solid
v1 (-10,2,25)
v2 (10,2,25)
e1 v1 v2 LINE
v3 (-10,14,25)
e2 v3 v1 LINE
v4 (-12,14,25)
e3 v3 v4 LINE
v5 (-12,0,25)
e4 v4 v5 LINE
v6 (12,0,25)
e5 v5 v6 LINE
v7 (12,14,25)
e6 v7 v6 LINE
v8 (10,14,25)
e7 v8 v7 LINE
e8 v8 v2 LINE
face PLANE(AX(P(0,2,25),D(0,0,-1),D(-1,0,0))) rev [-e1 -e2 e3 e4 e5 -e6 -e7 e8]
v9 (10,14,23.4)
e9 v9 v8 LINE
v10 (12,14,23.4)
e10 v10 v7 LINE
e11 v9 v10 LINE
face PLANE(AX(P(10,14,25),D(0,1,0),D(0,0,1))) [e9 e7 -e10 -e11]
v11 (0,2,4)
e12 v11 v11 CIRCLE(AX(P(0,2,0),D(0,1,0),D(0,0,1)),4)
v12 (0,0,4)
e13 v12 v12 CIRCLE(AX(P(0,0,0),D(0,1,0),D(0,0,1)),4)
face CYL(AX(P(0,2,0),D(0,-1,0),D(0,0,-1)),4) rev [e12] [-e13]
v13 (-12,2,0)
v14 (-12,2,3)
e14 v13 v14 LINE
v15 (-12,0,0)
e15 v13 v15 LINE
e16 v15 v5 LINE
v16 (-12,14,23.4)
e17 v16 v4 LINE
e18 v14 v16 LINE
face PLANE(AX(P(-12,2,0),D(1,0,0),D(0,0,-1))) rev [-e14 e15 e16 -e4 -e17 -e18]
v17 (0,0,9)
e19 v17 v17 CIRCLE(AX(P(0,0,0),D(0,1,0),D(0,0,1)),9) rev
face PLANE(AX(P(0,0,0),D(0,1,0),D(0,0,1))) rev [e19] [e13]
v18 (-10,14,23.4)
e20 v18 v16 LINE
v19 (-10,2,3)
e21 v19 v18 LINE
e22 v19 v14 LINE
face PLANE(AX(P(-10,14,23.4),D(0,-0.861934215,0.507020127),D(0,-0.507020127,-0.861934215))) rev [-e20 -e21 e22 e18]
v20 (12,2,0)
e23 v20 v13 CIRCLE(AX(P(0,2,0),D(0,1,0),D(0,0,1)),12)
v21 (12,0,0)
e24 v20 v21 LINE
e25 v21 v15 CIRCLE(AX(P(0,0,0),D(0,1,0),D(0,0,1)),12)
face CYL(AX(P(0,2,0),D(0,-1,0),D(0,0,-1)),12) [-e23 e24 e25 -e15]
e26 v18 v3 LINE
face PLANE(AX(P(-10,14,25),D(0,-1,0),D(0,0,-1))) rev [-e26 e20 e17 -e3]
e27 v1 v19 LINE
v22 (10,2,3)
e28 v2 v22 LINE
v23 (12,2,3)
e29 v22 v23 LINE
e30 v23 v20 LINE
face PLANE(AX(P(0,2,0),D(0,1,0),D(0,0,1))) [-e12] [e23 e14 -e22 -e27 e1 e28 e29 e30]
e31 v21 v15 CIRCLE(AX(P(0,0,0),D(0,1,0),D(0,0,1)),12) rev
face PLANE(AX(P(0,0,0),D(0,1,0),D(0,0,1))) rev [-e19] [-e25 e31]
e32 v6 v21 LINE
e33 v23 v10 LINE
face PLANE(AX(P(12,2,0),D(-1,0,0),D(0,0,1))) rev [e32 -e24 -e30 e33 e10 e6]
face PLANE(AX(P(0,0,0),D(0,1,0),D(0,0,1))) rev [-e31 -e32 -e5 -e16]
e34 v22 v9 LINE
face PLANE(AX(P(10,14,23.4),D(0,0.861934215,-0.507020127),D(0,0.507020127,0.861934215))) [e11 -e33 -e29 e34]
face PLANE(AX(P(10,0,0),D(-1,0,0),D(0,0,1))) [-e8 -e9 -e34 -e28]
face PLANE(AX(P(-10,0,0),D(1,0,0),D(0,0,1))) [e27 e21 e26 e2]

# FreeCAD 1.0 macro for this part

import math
import FreeCAD as App
import Part
import Sketcher

V = App.Vector


def add_polygon(sketch, points):
    """Adds a closed chain of lines whose ends are joined by coincident constraints."""
    first, n = sketch.GeometryCount, len(points)
    for a, b in zip(points, points[1:] + points[:1]):
        sketch.addGeometry(Part.LineSegment(App.Vector(*a, 0), App.Vector(*b, 0)), False)
    for i in range(n):
        sketch.addConstraint(Sketcher.Constraint("Coincident", first + i, 2, first + (i + 1) % n, 1))

doc = App.newDocument("Part")
body = doc.addObject("PartDesign::Body", "Body")

sketch1 = body.newObject("Sketcher::SketchObject", "Sketch")
sketch1.AttachmentSupport = (doc.getObject("XZ_Plane"), [""])
sketch1.MapMode = "FlatFace"
sketch1.addGeometry([
    Part.ArcOfCircle(Part.Circle(V(0, 0, 0), V(0, 0, 1), 12), math.radians(180), math.radians(360)),
    Part.LineSegment(V(-12, 0, 0), V(-12, 25, 0)),
    Part.LineSegment(V(-12, 25, 0), V(12, 25, 0)),
    Part.LineSegment(V(12, 25, 0), V(12, 0, 0)),
    Part.Circle(V(0, 0, 0), V(0, 0, 1), 4),
], False)
sketch1.addConstraint([
    Sketcher.Constraint("Tangent", 0, 1, 1, 1),
    Sketcher.Constraint("Coincident", 1, 2, 2, 1),
    Sketcher.Constraint("Coincident", 2, 2, 3, 1),
    Sketcher.Constraint("Tangent", 3, 2, 0, 2),
    Sketcher.Constraint("Vertical", 1),
    Sketcher.Constraint("Horizontal", 2),
    Sketcher.Constraint("Vertical", 3),
    Sketcher.Constraint("Coincident", 0, 3, -1, 1),
    Sketcher.Constraint("Coincident", 4, 3, -1, 1),
    Sketcher.Constraint("Diameter", 4, 8.0),
    Sketcher.Constraint("Radius", 0, 12.0),
    Sketcher.Constraint("DistanceY", 1, 1, 1, 2, 25.0),
])
pad1 = body.newObject("PartDesign::Pad", "Pad")
pad1.Profile = sketch1
pad1.Length = 2
pad1.Reversed = True

sketch2 = body.newObject("Sketcher::SketchObject", "Sketch001")
sketch2.AttachmentSupport = (doc.getObject("YZ_Plane"), [""])
sketch2.MapMode = "FlatFace"
sketch2.AttachmentOffset = App.Placement(V(0, 0, 12), App.Rotation())
add_polygon(sketch2, [(14, 25), (2, 25), (2, 3), (14, 23.4)])
sketch2.addConstraint([
    Sketcher.Constraint("Horizontal", 0),
    Sketcher.Constraint("Vertical", 1),
    Sketcher.Constraint("Vertical", 3),
    Sketcher.Constraint("DistanceX", 0, 2, 0, 1, 12.0),
    Sketcher.Constraint("DistanceY", 1, 2, 1, 1, 22.0),
    Sketcher.Constraint("DistanceY", 3, 1, 3, 2, 1.6),
    Sketcher.Constraint("DistanceX", -1, 1, 0, 2, 2.0),
    Sketcher.Constraint("DistanceY", -1, 1, 0, 2, 25.0),
])
pad2 = body.newObject("PartDesign::Pad", "Pad001")
pad2.Profile = sketch2
pad2.Length = 2
pad2.Reversed = True
doc.recompute()

mirrored = body.newObject("PartDesign::Mirrored", "Mirrored")
mirrored.Originals = [pad2]
mirrored.MirrorPlane = (doc.getObject("YZ_Plane"), [""])
body.Tip = mirrored

doc.recompute()
